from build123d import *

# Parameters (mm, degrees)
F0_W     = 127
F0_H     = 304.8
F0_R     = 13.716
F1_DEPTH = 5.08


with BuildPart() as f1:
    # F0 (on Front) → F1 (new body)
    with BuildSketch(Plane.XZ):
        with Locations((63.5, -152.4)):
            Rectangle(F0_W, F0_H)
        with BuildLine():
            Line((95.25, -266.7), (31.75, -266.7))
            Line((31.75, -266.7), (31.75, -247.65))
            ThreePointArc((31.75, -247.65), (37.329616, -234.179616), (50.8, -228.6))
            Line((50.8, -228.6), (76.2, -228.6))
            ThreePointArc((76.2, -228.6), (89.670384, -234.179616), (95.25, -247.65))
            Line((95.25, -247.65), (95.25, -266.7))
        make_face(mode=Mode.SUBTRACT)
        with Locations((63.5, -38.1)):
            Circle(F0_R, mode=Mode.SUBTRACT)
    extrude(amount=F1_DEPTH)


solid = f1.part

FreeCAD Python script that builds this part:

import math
import FreeCAD as App
import Part
import Sketcher
from FreeCAD import Vector
Q = App.Units.Quantity


def add_polygon(sketch, points):
    """Adds a closed chain of lines whose ends are joined by coincident constraints."""
    first, n = sketch.GeometryCount, len(points)
    for a, b in zip(points, points[1:] + points[:1]):
        sketch.addGeometry(Part.LineSegment(App.Vector(*a, 0), App.Vector(*b, 0)), False)
    for i in range(n):
        sketch.addConstraint(Sketcher.Constraint("Coincident", first + i, 2, first + (i + 1) % n, 1))

doc = App.newDocument("Part")
params = doc.addObject("Spreadsheet::Sheet", "Params")
for row, (alias, value) in enumerate([
    ("sketch1_diameter", "1.08 in"),
    ("sketch1_width", "5 in"),
    ("sketch1_width2", "1 in"),
    ("sketch1_height", "12 in"),
    ("sketch1_radius", "0.75 in"),
    ("pad1_length", "0.2 in"),
], start=1):
    params.set(f"A{row}", alias)
    params.set(f"B{row}", "=" + value)
    params.setAlias(f"B{row}", alias)

body = doc.addObject("PartDesign::Body", "Body")

sketch1 = body.newObject("Sketcher::SketchObject", "Sketch")
sketch1.AttachmentSupport = (doc.getObject("XZ_Plane"), [""])
sketch1.MapMode = "FlatFace"
add_polygon(sketch1, [(0, 0), (0, -305), (127, -305), (127, 0)])
sketch1.addGeometry(Part.LineSegment(Vector(95, -248, 0), Vector(95, -267, 0)), False)
sketch1.addGeometry(Part.LineSegment(Vector(95, -267, 0), Vector(32, -267, 0)), False)
sketch1.addGeometry(Part.LineSegment(Vector(32, -267, 0), Vector(32, -248, 0)), False)
sketch1.addGeometry(Part.ArcOfCircle(Part.Circle(Vector(51, -248, 0), Vector(0, 0, 1), 19), math.radians(90), math.radians(180)), False)
sketch1.addGeometry(Part.LineSegment(Vector(51, -229, 0), Vector(76, -229, 0)), False)
sketch1.addGeometry(Part.ArcOfCircle(Part.Circle(Vector(76, -248, 0), Vector(0, 0, 1), 19), math.radians(0), math.radians(90)), False)
sketch1.addGeometry(Part.Circle(Vector(64, -38, 0), Vector(0, 0, 1), 14), False)
sketch1.addConstraint([
    Sketcher.Constraint("Coincident", 4, 2, 5, 1),
    Sketcher.Constraint("Coincident", 5, 2, 6, 1),
    Sketcher.Constraint("Tangent", 6, 2, 7, 2),
    Sketcher.Constraint("Tangent", 7, 1, 8, 1),
    Sketcher.Constraint("Tangent", 8, 2, 9, 2),
    Sketcher.Constraint("Tangent", 9, 1, 4, 1),
    Sketcher.Constraint("Vertical", 0),
    Sketcher.Constraint("Horizontal", 1),
    Sketcher.Constraint("Vertical", 2),
    Sketcher.Constraint("Horizontal", 3),
    Sketcher.Constraint("Vertical", 4),
    Sketcher.Constraint("Horizontal", 5),
    Sketcher.Constraint("Vertical", 6),
    Sketcher.Constraint("Horizontal", 8),
    Sketcher.Constraint("Coincident", 3, 2, -1, 1),
    Sketcher.Constraint("Equal", 7, 9),
    Sketcher.Constraint("Diameter", 10, Q("1.08 in")),
    Sketcher.Constraint("DistanceX", 1, 1, 1, 2, Q("5 in")),
    Sketcher.Constraint("DistanceX", 8, 1, 8, 2, Q("1 in")),
    Sketcher.Constraint("DistanceY", 0, 2, 0, 1, Q("12 in")),
    Sketcher.Constraint("Radius", 7, Q("0.75 in")),
    Sketcher.Constraint("DistanceX", -1, 1, 7, 3, Q("2 in")),
    Sketcher.Constraint("DistanceY", 7, 1, -1, 1, Q("9 in")),
    Sketcher.Constraint("DistanceY", 4, 2, 10, 3, Q("9 in")),
    Sketcher.Constraint("DistanceY", 4, 2, 4, 1, Q("0.75 in")),
    Sketcher.Constraint("DistanceX", -1, 1, 10, 3, Q("2.5 in")),
])
sketch1.setExpression("Constraints[20]", "Params.sketch1_diameter")
sketch1.setExpression("Constraints[21]", "Params.sketch1_width")
sketch1.setExpression("Constraints[22]", "Params.sketch1_width2")
sketch1.setExpression("Constraints[23]", "Params.sketch1_height")
sketch1.setExpression("Constraints[24]", "Params.sketch1_radius")
pad1 = body.newObject("PartDesign::Pad", "Pad")
pad1.Profile = sketch1
pad1.setExpression("Length", "Params.pad1_length")

doc.recompute()
